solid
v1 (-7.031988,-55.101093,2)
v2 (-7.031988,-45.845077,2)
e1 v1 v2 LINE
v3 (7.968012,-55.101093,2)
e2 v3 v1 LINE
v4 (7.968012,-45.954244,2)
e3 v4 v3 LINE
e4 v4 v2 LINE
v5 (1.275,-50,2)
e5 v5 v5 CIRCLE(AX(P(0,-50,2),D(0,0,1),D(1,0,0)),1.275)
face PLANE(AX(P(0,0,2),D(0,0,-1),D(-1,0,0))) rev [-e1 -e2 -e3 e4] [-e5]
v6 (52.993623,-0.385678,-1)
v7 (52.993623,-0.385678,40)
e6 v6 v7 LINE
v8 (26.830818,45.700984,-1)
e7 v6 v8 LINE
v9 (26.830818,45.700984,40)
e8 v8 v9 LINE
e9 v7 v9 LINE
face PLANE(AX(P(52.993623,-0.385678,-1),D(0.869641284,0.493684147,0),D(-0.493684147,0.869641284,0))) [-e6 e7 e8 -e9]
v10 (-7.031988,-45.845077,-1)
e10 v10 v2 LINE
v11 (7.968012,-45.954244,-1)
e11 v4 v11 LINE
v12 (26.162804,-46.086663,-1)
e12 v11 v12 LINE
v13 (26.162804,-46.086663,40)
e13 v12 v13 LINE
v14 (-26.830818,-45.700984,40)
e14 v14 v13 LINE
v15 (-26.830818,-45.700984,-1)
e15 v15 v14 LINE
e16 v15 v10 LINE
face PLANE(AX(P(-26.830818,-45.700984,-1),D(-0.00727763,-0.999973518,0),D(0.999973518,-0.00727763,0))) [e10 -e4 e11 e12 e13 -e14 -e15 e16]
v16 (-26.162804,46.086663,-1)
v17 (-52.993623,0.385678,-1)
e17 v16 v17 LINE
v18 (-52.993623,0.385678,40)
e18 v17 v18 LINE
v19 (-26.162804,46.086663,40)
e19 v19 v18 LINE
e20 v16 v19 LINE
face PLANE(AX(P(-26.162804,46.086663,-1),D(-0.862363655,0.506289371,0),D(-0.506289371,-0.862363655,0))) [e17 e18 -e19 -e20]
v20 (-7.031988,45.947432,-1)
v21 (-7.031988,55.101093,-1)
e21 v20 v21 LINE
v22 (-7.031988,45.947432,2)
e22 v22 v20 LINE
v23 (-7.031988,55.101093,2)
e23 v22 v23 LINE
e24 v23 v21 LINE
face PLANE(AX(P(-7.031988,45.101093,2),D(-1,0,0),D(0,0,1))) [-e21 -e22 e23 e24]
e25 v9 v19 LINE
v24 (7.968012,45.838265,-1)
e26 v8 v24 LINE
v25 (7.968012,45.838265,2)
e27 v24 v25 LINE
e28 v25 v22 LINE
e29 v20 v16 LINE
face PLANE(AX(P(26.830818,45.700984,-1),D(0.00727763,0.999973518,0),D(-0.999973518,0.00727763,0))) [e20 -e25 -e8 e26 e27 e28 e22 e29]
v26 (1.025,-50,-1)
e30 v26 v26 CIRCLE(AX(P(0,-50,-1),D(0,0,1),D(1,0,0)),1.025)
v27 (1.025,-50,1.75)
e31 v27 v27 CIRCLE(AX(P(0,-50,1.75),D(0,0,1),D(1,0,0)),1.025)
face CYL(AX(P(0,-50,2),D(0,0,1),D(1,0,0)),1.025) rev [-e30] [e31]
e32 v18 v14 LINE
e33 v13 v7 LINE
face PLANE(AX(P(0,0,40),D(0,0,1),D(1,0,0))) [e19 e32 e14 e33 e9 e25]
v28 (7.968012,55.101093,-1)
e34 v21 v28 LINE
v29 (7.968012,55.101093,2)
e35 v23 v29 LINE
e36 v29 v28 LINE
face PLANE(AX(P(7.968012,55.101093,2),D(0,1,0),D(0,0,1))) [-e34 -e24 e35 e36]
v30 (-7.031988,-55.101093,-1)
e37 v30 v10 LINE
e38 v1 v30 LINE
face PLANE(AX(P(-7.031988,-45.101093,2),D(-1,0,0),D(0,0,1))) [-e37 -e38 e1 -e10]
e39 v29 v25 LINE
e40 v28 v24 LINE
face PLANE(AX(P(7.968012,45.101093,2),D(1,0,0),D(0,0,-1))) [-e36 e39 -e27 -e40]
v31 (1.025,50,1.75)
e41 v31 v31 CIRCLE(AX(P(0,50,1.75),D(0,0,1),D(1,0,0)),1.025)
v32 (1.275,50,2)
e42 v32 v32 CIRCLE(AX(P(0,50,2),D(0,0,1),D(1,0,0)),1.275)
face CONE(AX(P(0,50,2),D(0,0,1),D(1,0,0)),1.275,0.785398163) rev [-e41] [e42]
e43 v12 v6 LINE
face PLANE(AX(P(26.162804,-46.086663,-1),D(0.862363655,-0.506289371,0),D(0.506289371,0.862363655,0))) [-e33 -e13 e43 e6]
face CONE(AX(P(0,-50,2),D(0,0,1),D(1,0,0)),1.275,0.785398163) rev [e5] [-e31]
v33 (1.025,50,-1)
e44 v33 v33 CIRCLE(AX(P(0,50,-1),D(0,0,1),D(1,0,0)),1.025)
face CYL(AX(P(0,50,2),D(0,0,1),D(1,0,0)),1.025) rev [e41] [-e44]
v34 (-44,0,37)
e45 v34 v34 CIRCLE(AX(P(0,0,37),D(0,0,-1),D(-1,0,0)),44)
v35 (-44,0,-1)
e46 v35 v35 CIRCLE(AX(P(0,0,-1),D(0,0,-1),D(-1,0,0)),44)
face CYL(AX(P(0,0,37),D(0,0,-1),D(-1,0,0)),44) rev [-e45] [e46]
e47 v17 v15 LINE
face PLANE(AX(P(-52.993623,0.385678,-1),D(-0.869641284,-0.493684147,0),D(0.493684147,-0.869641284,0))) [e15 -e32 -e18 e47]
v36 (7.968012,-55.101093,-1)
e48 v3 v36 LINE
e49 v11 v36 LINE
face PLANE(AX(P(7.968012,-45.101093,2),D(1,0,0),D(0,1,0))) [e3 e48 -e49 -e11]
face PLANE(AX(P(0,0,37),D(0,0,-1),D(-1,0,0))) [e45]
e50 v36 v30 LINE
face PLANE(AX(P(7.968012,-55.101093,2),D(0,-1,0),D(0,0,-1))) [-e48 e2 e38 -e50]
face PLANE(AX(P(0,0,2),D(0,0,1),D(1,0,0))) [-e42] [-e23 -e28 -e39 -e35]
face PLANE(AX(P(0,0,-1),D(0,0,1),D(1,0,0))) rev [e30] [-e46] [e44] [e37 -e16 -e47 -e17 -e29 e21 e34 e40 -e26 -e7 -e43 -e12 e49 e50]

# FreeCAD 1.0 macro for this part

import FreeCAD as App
import Part
import Sketcher
from FreeCAD import Vector
Q = App.Units.Quantity


def add_polygon(sketch, points):
    """Adds a closed chain of lines whose ends are joined by coincident constraints."""
    first, n = sketch.GeometryCount, len(points)
    for a, b in zip(points, points[1:] + points[:1]):
        sketch.addGeometry(Part.LineSegment(App.Vector(*a, 0), App.Vector(*b, 0)), False)
    for i in range(n):
        sketch.addConstraint(Sketcher.Constraint("Coincident", first + i, 2, first + (i + 1) % n, 1))

doc = App.newDocument("Part")
body = doc.addObject("PartDesign::Body", "Body")

# Sketch on XY plane
sketch1 = doc.addObject("Sketcher::SketchObject", "Sketch")
body.addObject(sketch1)
sketch1.AttachmentSupport = (doc.XY_Plane, [""])
sketch1.MapMode = "FlatFace"
add_polygon(sketch1, [(52, 0), (26, 45), (-26, 45), (-52, 0), (-26, -45), (26, -45)])  # lines 0-5
sketch1.addConstraint([
    Sketcher.Constraint("Horizontal", 1),
    Sketcher.Constraint("Horizontal", 4),
    Sketcher.Constraint("Symmetric", 0, 2, 3, 2, -1, 1),
    Sketcher.Constraint("Symmetric", 2, 2, 5, 2, -1, 1),
    Sketcher.Constraint("PointOnObject", 2, 2, -1),
    Sketcher.Constraint("Parallel", 2, 5),
    Sketcher.Constraint("Vertical", 1, 2, 3, 2),
    Sketcher.Constraint("Angle", 0, Q("120 deg")),
    Sketcher.Constraint("DistanceX", 1, 2, 1, 1, 52.078256),
    Sketcher.Constraint("DistanceX", 2, 2, 5, 2, 104.156512),
])
pad1 = doc.addObject("PartDesign::Pad", "Pad")
body.addObject(pad1)
pad1.Profile = sketch1
pad1.Type = "TwoLengths"
pad1.Length = 40
pad1.Length2 = 1

# Sketch on XY plane
sketch2 = doc.addObject("Sketcher::SketchObject", "Sketch001")
body.addObject(sketch2)
sketch2.AttachmentSupport = (doc.XY_Plane, [""])
sketch2.MapMode = "FlatFace"
sketch2.AttachmentOffset = App.Placement(Vector(0, 0, -1), App.Rotation())
sketch2.addGeometry(Part.Circle(Vector(0, 0, 0), Vector(0, 0, 1), 44), False)
sketch2.addConstraint([
    Sketcher.Constraint("Coincident", 0, 3, -1, 1),
    Sketcher.Constraint("Diameter", 0, 88.0),
])
pocket1 = doc.addObject("PartDesign::Pocket", "Pocket")
body.addObject(pocket1)
pocket1.Profile = sketch2
pocket1.Length = 38
pocket1.Reversed = True

# Sketch on XY plane
sketch3 = doc.addObject("Sketcher::SketchObject", "Sketch002")
body.addObject(sketch3)
sketch3.AttachmentSupport = (doc.XY_Plane, [""])
sketch3.MapMode = "FlatFace"
sketch3.AttachmentOffset = App.Placement(Vector(0, 0, -1), App.Rotation())
add_polygon(sketch3, [(8, 55), (8, 45), (-7, 45), (-7, 55)])  # lines 0-3
add_polygon(sketch3, [(8, -45), (8, -55), (-7, -55), (-7, -45)])  # lines 4-7
sketch3.addConstraint([
    Sketcher.Constraint("Vertical", 0),
    Sketcher.Constraint("Horizontal", 1),
    Sketcher.Constraint("Vertical", 2),
    Sketcher.Constraint("Horizontal", 3),
    Sketcher.Constraint("Vertical", 4),
    Sketcher.Constraint("Horizontal", 5),
    Sketcher.Constraint("Vertical", 6),
    Sketcher.Constraint("Horizontal", 7),
    Sketcher.Constraint("Symmetric", 3, 2, 4, 2, -1),
    Sketcher.Constraint("Symmetric", 1, 2, 6, 2, -1),
    Sketcher.Constraint("DistanceX", 1, 2, 1, 1, 15.0),
    Sketcher.Constraint("DistanceY", 0, 2, 0, 1, 10.0),
    Sketcher.Constraint("DistanceX", -1, 1, 0, 2, 7.968012),
    Sketcher.Constraint("DistanceY", -1, 1, 0, 2, 45.101093),
])
pad2 = doc.addObject("PartDesign::Pad", "Pad001")
body.addObject(pad2)
pad2.Profile = sketch3
pad2.Length = 3

# Sketch on XY plane
sketch4 = doc.addObject("Sketcher::SketchObject", "Sketch003")
body.addObject(sketch4)
sketch4.AttachmentSupport = (doc.XY_Plane, [""])
sketch4.MapMode = "FlatFace"
sketch4.AttachmentOffset = App.Placement(Vector(0, 0, 2), App.Rotation())
sketch4.addGeometry([
    Part.Circle(Vector(0, 50, 0), Vector(0, 0, 1), 1),
    Part.Circle(Vector(0, -50, 0), Vector(0, 0, 1), 1),
], False)
sketch4.addConstraint([
    Sketcher.Constraint("Equal", 0, 1),
    Sketcher.Constraint("Symmetric", 0, 3, 1, 3, -1, 1),
    Sketcher.Constraint("PointOnObject", 0, 3, -2),
    Sketcher.Constraint("Diameter", 0, 2.05),
    Sketcher.Constraint("DistanceY", -1, 1, 0, 3, 50.0),
])
doc.recompute()
hole = doc.addObject("PartDesign::Hole", "Hole")
body.addObject(hole)
hole.Profile = sketch4
hole.ThreadType = "None"
hole.Diameter = 2.05
hole.DepthType = "ThroughAll"
hole.HoleCutType = "Countersink"
hole.HoleCutDiameter = 2.55
hole.HoleCutCountersinkAngle = 90

# Sketch on XY plane
sketch5 = doc.addObject("Sketcher::SketchObject", "Sketch004")
body.addObject(sketch5)
sketch5.AttachmentSupport = (doc.XY_Plane, [""])
sketch5.MapMode = "FlatFace"
sketch5.AttachmentOffset = App.Placement(Vector(0, 0, 40), App.Rotation())
add_polygon(sketch5, [(-53, 0), (-27, -46), (26, -46), (53, 0), (27, 46), (-26, 46)])  # lines 0-5
sketch5.addConstraint([
    Sketcher.Constraint("Symmetric", 0, 2, 3, 2, -1, 1),
    Sketcher.Constraint("Symmetric", 1, 2, 4, 2, -1, 1),
    Sketcher.Constraint("Symmetric", 2, 2, 5, 2, -1, 1),
    Sketcher.Constraint("Equal", 0, 1),
    Sketcher.Constraint("Equal", 1, 2),
    Sketcher.Constraint("DistanceX", 0, 2, -1, 1, 26.830818),
    Sketcher.Constraint("DistanceY", 2, 2, -1, 1, 0.385678),
    Sketcher.Constraint("DistanceY", 1, 2, 0, 2, 0.385678),
    Sketcher.Constraint("DistanceX", 1, 2, 2, 2, 26.830818),
])
pad3 = doc.addObject("PartDesign::Pad", "Pad002")
body.addObject(pad3)
pad3.Profile = sketch5
pad3.Length = 41
pad3.Reversed = True

# Sketch on XY plane
sketch6 = doc.addObject("Sketcher::SketchObject", "Sketch005")
body.addObject(sketch6)
sketch6.AttachmentSupport = (doc.XY_Plane, [""])
sketch6.MapMode = "FlatFace"
sketch6.AttachmentOffset = App.Placement(Vector(0, 0, -1), App.Rotation())
sketch6.addGeometry(Part.Circle(Vector(0, 0, 0), Vector(0, 0, 1), 44), False)
sketch6.addConstraint([
    Sketcher.Constraint("Coincident", 0, 3, -1, 1),
    Sketcher.Constraint("Diameter", 0, 88.0),
])
pocket2 = doc.addObject("PartDesign::Pocket", "Pocket001")
body.addObject(pocket2)
pocket2.Profile = sketch6
pocket2.Length = 38
pocket2.Reversed = True

doc.recompute()
